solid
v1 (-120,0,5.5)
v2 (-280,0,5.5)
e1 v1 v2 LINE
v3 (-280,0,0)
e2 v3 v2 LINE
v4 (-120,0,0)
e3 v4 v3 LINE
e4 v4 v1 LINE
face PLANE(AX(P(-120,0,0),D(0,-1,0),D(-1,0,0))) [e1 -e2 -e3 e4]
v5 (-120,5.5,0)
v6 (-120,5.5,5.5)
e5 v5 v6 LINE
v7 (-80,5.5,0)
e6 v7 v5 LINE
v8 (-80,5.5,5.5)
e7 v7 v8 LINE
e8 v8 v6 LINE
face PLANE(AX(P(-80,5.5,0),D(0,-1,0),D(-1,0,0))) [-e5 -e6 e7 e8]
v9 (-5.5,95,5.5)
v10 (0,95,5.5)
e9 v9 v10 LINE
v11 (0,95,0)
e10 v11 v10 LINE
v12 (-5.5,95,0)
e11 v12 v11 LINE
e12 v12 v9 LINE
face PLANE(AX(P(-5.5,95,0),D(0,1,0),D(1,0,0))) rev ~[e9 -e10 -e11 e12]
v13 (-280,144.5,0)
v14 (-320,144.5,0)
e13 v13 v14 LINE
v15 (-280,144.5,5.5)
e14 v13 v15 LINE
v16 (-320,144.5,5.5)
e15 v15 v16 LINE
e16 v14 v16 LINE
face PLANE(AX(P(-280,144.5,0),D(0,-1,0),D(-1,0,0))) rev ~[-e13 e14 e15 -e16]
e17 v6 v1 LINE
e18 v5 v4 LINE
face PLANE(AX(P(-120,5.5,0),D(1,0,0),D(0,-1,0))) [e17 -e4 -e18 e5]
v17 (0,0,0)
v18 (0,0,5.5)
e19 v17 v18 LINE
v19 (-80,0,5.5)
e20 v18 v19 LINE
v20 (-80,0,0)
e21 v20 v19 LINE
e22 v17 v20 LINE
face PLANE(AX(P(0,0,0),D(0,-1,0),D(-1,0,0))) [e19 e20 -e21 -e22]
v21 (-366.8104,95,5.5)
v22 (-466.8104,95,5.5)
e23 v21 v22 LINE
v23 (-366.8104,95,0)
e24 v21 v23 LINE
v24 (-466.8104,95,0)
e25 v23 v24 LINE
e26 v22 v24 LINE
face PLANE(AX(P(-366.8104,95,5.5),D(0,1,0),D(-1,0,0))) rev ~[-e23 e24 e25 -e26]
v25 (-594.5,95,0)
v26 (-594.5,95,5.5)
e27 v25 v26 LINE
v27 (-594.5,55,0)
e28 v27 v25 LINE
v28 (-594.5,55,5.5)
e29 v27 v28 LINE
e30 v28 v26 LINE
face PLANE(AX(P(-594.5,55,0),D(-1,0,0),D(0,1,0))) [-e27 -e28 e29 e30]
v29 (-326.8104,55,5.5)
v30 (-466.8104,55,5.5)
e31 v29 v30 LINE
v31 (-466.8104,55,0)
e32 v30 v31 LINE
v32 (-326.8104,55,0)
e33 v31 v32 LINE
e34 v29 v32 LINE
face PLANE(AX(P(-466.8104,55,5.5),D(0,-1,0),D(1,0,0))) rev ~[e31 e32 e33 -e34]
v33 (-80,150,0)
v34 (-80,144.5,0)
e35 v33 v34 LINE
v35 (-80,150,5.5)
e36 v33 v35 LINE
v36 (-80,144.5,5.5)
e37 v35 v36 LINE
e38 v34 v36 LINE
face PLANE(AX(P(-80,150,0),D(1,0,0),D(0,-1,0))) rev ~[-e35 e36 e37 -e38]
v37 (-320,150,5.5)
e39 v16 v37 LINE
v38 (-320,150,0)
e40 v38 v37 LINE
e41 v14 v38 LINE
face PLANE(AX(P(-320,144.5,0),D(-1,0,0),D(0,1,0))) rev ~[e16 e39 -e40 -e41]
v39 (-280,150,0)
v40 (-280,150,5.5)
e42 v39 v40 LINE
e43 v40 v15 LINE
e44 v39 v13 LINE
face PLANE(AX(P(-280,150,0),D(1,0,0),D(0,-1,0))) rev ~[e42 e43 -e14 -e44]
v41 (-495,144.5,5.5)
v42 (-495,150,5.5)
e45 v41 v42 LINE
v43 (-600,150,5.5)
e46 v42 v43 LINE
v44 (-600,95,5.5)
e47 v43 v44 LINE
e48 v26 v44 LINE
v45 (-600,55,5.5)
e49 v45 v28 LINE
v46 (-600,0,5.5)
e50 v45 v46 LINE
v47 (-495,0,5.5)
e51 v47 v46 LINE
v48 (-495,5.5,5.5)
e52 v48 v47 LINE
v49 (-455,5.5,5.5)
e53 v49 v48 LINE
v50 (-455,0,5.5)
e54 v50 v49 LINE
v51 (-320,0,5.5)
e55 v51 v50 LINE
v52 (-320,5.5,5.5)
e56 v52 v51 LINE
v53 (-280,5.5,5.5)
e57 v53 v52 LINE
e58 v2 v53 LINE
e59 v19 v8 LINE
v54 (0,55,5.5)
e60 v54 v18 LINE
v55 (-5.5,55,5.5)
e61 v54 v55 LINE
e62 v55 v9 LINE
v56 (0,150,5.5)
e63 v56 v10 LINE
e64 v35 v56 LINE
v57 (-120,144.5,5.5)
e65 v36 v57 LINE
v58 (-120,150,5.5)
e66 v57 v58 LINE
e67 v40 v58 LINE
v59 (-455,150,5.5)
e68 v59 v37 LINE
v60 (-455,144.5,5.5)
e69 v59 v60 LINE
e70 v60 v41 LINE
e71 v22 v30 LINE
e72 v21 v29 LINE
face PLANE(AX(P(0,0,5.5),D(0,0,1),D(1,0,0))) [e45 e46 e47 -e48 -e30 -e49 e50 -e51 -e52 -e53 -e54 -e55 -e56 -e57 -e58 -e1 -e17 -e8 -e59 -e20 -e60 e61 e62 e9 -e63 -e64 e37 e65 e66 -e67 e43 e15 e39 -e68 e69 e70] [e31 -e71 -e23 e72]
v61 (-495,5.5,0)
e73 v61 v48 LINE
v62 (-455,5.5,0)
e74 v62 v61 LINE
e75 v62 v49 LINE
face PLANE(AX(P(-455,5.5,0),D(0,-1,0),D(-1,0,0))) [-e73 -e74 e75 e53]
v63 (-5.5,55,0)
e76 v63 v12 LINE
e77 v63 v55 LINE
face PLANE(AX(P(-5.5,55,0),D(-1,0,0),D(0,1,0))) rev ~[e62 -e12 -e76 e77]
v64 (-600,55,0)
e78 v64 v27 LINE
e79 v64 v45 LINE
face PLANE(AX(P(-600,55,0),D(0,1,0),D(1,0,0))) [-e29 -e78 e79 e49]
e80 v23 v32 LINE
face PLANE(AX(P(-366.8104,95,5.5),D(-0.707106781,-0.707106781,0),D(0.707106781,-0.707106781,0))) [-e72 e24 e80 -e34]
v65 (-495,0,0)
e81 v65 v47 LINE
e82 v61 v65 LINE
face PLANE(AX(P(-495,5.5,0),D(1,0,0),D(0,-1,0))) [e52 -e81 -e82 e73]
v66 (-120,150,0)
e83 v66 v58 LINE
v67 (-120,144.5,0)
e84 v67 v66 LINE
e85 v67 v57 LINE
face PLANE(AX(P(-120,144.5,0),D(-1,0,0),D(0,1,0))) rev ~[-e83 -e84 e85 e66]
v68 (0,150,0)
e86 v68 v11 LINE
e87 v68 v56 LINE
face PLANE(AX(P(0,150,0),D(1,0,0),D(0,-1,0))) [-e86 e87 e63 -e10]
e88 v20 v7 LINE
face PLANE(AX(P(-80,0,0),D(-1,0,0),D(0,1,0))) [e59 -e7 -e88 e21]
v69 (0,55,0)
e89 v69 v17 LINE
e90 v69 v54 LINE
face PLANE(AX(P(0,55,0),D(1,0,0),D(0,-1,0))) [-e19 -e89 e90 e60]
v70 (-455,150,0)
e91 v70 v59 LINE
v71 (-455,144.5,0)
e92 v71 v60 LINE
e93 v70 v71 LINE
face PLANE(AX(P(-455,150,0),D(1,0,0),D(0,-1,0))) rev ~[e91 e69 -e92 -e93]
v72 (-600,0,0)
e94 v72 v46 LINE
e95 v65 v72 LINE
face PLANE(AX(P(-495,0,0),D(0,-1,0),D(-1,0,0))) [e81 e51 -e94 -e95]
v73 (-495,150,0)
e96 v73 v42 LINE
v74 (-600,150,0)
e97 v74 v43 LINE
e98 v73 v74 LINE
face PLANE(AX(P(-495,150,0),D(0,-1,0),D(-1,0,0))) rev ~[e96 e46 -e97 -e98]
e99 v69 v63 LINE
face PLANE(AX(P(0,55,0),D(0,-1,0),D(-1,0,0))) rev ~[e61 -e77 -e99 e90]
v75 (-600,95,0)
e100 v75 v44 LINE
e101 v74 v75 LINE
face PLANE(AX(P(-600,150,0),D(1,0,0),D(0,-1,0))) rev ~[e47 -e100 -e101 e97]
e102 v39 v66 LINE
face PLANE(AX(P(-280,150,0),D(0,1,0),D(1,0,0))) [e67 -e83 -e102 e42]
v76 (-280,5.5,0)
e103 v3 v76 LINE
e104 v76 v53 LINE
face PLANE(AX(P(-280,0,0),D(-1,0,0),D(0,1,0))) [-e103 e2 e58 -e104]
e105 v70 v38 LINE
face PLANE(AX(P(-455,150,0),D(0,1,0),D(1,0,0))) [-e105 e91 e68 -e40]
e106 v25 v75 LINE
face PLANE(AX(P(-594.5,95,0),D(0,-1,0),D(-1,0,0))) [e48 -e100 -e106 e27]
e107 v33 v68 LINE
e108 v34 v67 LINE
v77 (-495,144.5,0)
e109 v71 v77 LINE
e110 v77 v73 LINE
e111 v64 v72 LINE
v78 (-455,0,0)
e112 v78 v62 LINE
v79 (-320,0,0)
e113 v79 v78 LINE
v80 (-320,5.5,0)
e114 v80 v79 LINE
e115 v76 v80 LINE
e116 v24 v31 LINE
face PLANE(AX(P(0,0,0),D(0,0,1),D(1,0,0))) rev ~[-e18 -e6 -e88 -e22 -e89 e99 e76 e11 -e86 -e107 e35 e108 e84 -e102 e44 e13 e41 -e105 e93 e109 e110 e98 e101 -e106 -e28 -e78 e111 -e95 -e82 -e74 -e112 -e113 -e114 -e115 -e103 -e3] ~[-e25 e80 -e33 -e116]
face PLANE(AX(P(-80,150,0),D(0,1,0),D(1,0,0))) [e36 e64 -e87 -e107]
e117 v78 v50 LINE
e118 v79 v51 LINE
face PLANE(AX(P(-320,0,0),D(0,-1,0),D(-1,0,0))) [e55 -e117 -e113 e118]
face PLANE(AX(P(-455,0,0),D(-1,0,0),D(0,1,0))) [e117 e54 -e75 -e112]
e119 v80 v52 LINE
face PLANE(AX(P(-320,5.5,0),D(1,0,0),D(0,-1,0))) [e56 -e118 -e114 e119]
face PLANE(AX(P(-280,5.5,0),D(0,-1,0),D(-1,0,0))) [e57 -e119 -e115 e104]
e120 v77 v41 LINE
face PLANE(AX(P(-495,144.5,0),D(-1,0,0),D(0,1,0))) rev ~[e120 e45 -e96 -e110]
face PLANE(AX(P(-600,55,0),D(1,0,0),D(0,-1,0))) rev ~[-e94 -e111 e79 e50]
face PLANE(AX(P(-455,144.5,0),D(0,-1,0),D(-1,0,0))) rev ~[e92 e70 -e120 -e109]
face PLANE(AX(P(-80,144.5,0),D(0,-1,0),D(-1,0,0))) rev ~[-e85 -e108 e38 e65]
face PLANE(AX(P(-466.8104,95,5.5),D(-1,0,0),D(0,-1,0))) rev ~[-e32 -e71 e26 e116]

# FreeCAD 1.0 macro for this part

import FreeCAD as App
import Part
import Sketcher
from FreeCAD import Vector
Q = App.Units.Quantity

doc = App.newDocument("Part")
body = doc.addObject("PartDesign::Body", "Body")

sketch1 = body.newObject("Sketcher::SketchObject", "Sketch")
sketch1.AttachmentSupport = (doc.getObject("XY_Plane"), [""])
sketch1.MapMode = "FlatFace"
sketch1.addGeometry(Part.LineSegment(Vector(-280, 6, 0), Vector(-280, 0, 0)), False)
sketch1.addGeometry(Part.LineSegment(Vector(-280, 0, 0), Vector(-120, 0, 0)), False)
sketch1.addGeometry(Part.LineSegment(Vector(-120, 0, 0), Vector(-120, 6, 0)), False)
sketch1.addGeometry(Part.LineSegment(Vector(-120, 6, 0), Vector(-80, 6, 0)), False)
sketch1.addGeometry(Part.LineSegment(Vector(-80, 6, 0), Vector(-80, 0, 0)), False)
sketch1.addGeometry(Part.LineSegment(Vector(-80, 0, 0), Vector(0, 0, 0)), False)
sketch1.addGeometry(Part.LineSegment(Vector(0, 0, 0), Vector(0, 55, 0)), False)
sketch1.addGeometry(Part.LineSegment(Vector(0, 55, 0), Vector(-6, 55, 0)), False)
sketch1.addGeometry(Part.LineSegment(Vector(-6, 55, 0), Vector(-6, 95, 0)), False)
sketch1.addGeometry(Part.LineSegment(Vector(-6, 95, 0), Vector(0, 95, 0)), False)
sketch1.addGeometry(Part.LineSegment(Vector(0, 95, 0), Vector(0, 150, 0)), False)
sketch1.addGeometry(Part.LineSegment(Vector(0, 150, 0), Vector(-80, 150, 0)), False)
sketch1.addGeometry(Part.LineSegment(Vector(-80, 150, 0), Vector(-80, 144, 0)), False)
sketch1.addGeometry(Part.LineSegment(Vector(-80, 144, 0), Vector(-120, 144, 0)), False)
sketch1.addGeometry(Part.LineSegment(Vector(-120, 144, 0), Vector(-120, 150, 0)), False)
sketch1.addGeometry(Part.LineSegment(Vector(-120, 150, 0), Vector(-280, 150, 0)), False)
sketch1.addGeometry(Part.LineSegment(Vector(-280, 150, 0), Vector(-280, 144, 0)), False)
sketch1.addGeometry(Part.LineSegment(Vector(-280, 144, 0), Vector(-320, 144, 0)), False)
sketch1.addGeometry(Part.LineSegment(Vector(-320, 144, 0), Vector(-320, 150, 0)), False)
sketch1.addGeometry(Part.LineSegment(Vector(-320, 150, 0), Vector(-455, 150, 0)), False)
sketch1.addGeometry(Part.LineSegment(Vector(-455, 150, 0), Vector(-455, 144, 0)), False)
sketch1.addGeometry(Part.LineSegment(Vector(-455, 144, 0), Vector(-495, 144, 0)), False)
sketch1.addGeometry(Part.LineSegment(Vector(-495, 144, 0), Vector(-495, 150, 0)), False)
sketch1.addGeometry(Part.LineSegment(Vector(-495, 150, 0), Vector(-600, 150, 0)), False)
sketch1.addGeometry(Part.LineSegment(Vector(-600, 150, 0), Vector(-600, 95, 0)), False)
sketch1.addGeometry(Part.LineSegment(Vector(-600, 95, 0), Vector(-594, 95, 0)), False)
sketch1.addGeometry(Part.LineSegment(Vector(-594, 95, 0), Vector(-594, 55, 0)), False)
sketch1.addGeometry(Part.LineSegment(Vector(-594, 55, 0), Vector(-600, 55, 0)), False)
sketch1.addGeometry(Part.LineSegment(Vector(-600, 55, 0), Vector(-600, 0, 0)), False)
sketch1.addGeometry(Part.LineSegment(Vector(-600, 0, 0), Vector(-495, 0, 0)), False)
sketch1.addGeometry(Part.LineSegment(Vector(-495, 0, 0), Vector(-495, 6, 0)), False)
sketch1.addGeometry(Part.LineSegment(Vector(-495, 6, 0), Vector(-455, 6, 0)), False)
sketch1.addGeometry(Part.LineSegment(Vector(-455, 6, 0), Vector(-455, 0, 0)), False)
sketch1.addGeometry(Part.LineSegment(Vector(-455, 0, 0), Vector(-320, 0, 0)), False)
sketch1.addGeometry(Part.LineSegment(Vector(-320, 0, 0), Vector(-320, 6, 0)), False)
sketch1.addGeometry(Part.LineSegment(Vector(-320, 6, 0), Vector(-280, 6, 0)), False)
sketch1.addConstraint(Sketcher.Constraint("Coincident", 0, 2, 1, 1))
sketch1.addConstraint(Sketcher.Constraint("Coincident", 1, 2, 2, 1))
sketch1.addConstraint(Sketcher.Constraint("Coincident", 2, 2, 3, 1))
sketch1.addConstraint(Sketcher.Constraint("Coincident", 3, 2, 4, 1))
sketch1.addConstraint(Sketcher.Constraint("Coincident", 4, 2, 5, 1))
sketch1.addConstraint(Sketcher.Constraint("Coincident", 5, 2, 6, 1))
sketch1.addConstraint(Sketcher.Constraint("Coincident", 6, 2, 7, 1))
sketch1.addConstraint(Sketcher.Constraint("Coincident", 7, 2, 8, 1))
sketch1.addConstraint(Sketcher.Constraint("Coincident", 8, 2, 9, 1))
sketch1.addConstraint(Sketcher.Constraint("Coincident", 9, 2, 10, 1))
sketch1.addConstraint(Sketcher.Constraint("Coincident", 10, 2, 11, 1))
sketch1.addConstraint(Sketcher.Constraint("Coincident", 11, 2, 12, 1))
sketch1.addConstraint(Sketcher.Constraint("Coincident", 12, 2, 13, 1))
sketch1.addConstraint(Sketcher.Constraint("Coincident", 13, 2, 14, 1))
sketch1.addConstraint(Sketcher.Constraint("Coincident", 14, 2, 15, 1))
sketch1.addConstraint(Sketcher.Constraint("Coincident", 15, 2, 16, 1))
sketch1.addConstraint(Sketcher.Constraint("Coincident", 16, 2, 17, 1))
sketch1.addConstraint(Sketcher.Constraint("Coincident", 17, 2, 18, 1))
sketch1.addConstraint(Sketcher.Constraint("Coincident", 18, 2, 19, 1))
sketch1.addConstraint(Sketcher.Constraint("Coincident", 19, 2, 20, 1))
sketch1.addConstraint(Sketcher.Constraint("Coincident", 20, 2, 21, 1))
sketch1.addConstraint(Sketcher.Constraint("Coincident", 21, 2, 22, 1))
sketch1.addConstraint(Sketcher.Constraint("Coincident", 22, 2, 23, 1))
sketch1.addConstraint(Sketcher.Constraint("Coincident", 23, 2, 24, 1))
sketch1.addConstraint(Sketcher.Constraint("Coincident", 24, 2, 25, 1))
sketch1.addConstraint(Sketcher.Constraint("Coincident", 25, 2, 26, 1))
sketch1.addConstraint(Sketcher.Constraint("Coincident", 26, 2, 27, 1))
sketch1.addConstraint(Sketcher.Constraint("Coincident", 27, 2, 28, 1))
sketch1.addConstraint(Sketcher.Constraint("Coincident", 28, 2, 29, 1))
sketch1.addConstraint(Sketcher.Constraint("Coincident", 29, 2, 30, 1))
sketch1.addConstraint(Sketcher.Constraint("Coincident", 30, 2, 31, 1))
sketch1.addConstraint(Sketcher.Constraint("Coincident", 31, 2, 32, 1))
sketch1.addConstraint(Sketcher.Constraint("Coincident", 32, 2, 33, 1))
sketch1.addConstraint(Sketcher.Constraint("Coincident", 33, 2, 34, 1))
sketch1.addConstraint(Sketcher.Constraint("Coincident", 34, 2, 35, 1))
sketch1.addConstraint(Sketcher.Constraint("Coincident", 35, 2, 0, 1))
sketch1.addConstraint(Sketcher.Constraint("Vertical", 0))
sketch1.addConstraint(Sketcher.Constraint("Horizontal", 1))
sketch1.addConstraint(Sketcher.Constraint("Vertical", 2))
sketch1.addConstraint(Sketcher.Constraint("Horizontal", 3))
sketch1.addConstraint(Sketcher.Constraint("Vertical", 4))
sketch1.addConstraint(Sketcher.Constraint("Horizontal", 5))
sketch1.addConstraint(Sketcher.Constraint("Vertical", 6))
sketch1.addConstraint(Sketcher.Constraint("Horizontal", 7))
sketch1.addConstraint(Sketcher.Constraint("Vertical", 8))
sketch1.addConstraint(Sketcher.Constraint("Horizontal", 9))
sketch1.addConstraint(Sketcher.Constraint("Vertical", 10))
sketch1.addConstraint(Sketcher.Constraint("Horizontal", 11))
sketch1.addConstraint(Sketcher.Constraint("Vertical", 12))
sketch1.addConstraint(Sketcher.Constraint("Horizontal", 13))
sketch1.addConstraint(Sketcher.Constraint("Vertical", 14))
sketch1.addConstraint(Sketcher.Constraint("Horizontal", 15))
sketch1.addConstraint(Sketcher.Constraint("Vertical", 16))
sketch1.addConstraint(Sketcher.Constraint("Horizontal", 17))
sketch1.addConstraint(Sketcher.Constraint("Vertical", 18))
sketch1.addConstraint(Sketcher.Constraint("Horizontal", 19))
sketch1.addConstraint(Sketcher.Constraint("Vertical", 20))
sketch1.addConstraint(Sketcher.Constraint("Horizontal", 21))
sketch1.addConstraint(Sketcher.Constraint("Vertical", 22))
sketch1.addConstraint(Sketcher.Constraint("Horizontal", 23))
sketch1.addConstraint(Sketcher.Constraint("Vertical", 24))
sketch1.addConstraint(Sketcher.Constraint("Horizontal", 25))
sketch1.addConstraint(Sketcher.Constraint("Vertical", 26))
sketch1.addConstraint(Sketcher.Constraint("Horizontal", 27))
sketch1.addConstraint(Sketcher.Constraint("Vertical", 28))
sketch1.addConstraint(Sketcher.Constraint("Horizontal", 29))
sketch1.addConstraint(Sketcher.Constraint("Vertical", 30))
sketch1.addConstraint(Sketcher.Constraint("Horizontal", 31))
sketch1.addConstraint(Sketcher.Constraint("Vertical", 32))
sketch1.addConstraint(Sketcher.Constraint("Horizontal", 33))
sketch1.addConstraint(Sketcher.Constraint("Vertical", 34))
sketch1.addConstraint(Sketcher.Constraint("Horizontal", 35))
sketch1.addConstraint(Sketcher.Constraint("Coincident", 5, 2, -1, 1))
sketch1.addConstraint(Sketcher.Constraint("PointOnObject", 0, 2, -1))
sketch1.addConstraint(Sketcher.Constraint("PointOnObject", 9, 2, -2))
sketch1.addConstraint(Sketcher.Constraint("PointOnObject", 28, 2, -1))
sketch1.addConstraint(Sketcher.Constraint("PointOnObject", 32, 2, -1))
sketch1.addConstraint(Sketcher.Constraint("Horizontal", 11, 2, 14, 2))
sketch1.addConstraint(Sketcher.Constraint("Horizontal", 13, 2, 16, 2))
sketch1.addConstraint(Sketcher.Constraint("Horizontal", 15, 2, 18, 2))
sketch1.addConstraint(Sketcher.Constraint("Horizontal", 17, 2, 20, 2))
sketch1.addConstraint(Sketcher.Constraint("Horizontal", 19, 2, 22, 2))
sketch1.addConstraint(Sketcher.Constraint("Horizontal", 9, 2, 24, 2))
sketch1.addConstraint(Sketcher.Constraint("Horizontal", 7, 2, 26, 2))
sketch1.addConstraint(Sketcher.Constraint("Horizontal", 3, 2, 30, 2))
sketch1.addConstraint(Sketcher.Constraint("Horizontal", 31, 2, 34, 2))
sketch1.addConstraint(Sketcher.Constraint("Vertical", 4, 2, 11, 2))
sketch1.addConstraint(Sketcher.Constraint("Vertical", 2, 2, 13, 2))
sketch1.addConstraint(Sketcher.Constraint("Vertical", 0, 2, 15, 2))
sketch1.addConstraint(Sketcher.Constraint("Vertical", 24, 2, 27, 2))
sketch1.addConstraint(Sketcher.Constraint("Vertical", 22, 2, 29, 2))
sketch1.addConstraint(Sketcher.Constraint("Vertical", 20, 2, 31, 2))
sketch1.addConstraint(Sketcher.Constraint("Vertical", 18, 2, 33, 2))
sketch1.addConstraint(Sketcher.Constraint("Equal", 13, 17))
sketch1.addConstraint(Sketcher.Constraint("Equal", 17, 21))
sketch1.addConstraint(Sketcher.Constraint("Equal", 9, 25))
sketch1.addConstraint(Sketcher.Constraint("Equal", 27, 0))
sketch1.addConstraint(Sketcher.Constraint("Equal", 35, 8))
sketch1.addConstraint(Sketcher.Constraint("Equal", 6, 10))
sketch1.addConstraint(Sketcher.Constraint("Equal", 4, 12))
sketch1.addConstraint(Sketcher.Constraint("DistanceX", 3, 1, 3, 2, Q("40 mm")))
sketch1.addConstraint(Sketcher.Constraint("DistanceX", 7, 2, 7, 1, Q("5.5 mm")))
sketch1.addConstraint(Sketcher.Constraint("DistanceY", -1, 1, 10, 2, Q("150 mm")))
sketch1.addConstraint(Sketcher.Constraint("DistanceX", 23, 2, -1, 1, Q("600 mm")))
sketch1.addConstraint(Sketcher.Constraint("DistanceX", 1, 1, 1, 2, Q("160 mm")))
sketch1.addConstraint(Sketcher.Constraint("DistanceX", 5, 1, 5, 2, Q("80 mm")))
sketch1.addConstraint(Sketcher.Constraint("DistanceX", 19, 2, 19, 1, Q("135 mm")))
pad1 = body.newObject("PartDesign::Pad", "Pad")
pad1.Profile = sketch1
pad1.Length = 5.5

sketch2 = body.newObject("Sketcher::SketchObject", "Sketch001")
sketch2.AttachmentSupport = (doc.getObject("XY_Plane"), [""])
sketch2.MapMode = "FlatFace"
sketch2.AttachmentOffset = App.Placement(Vector(0, 0, 5.5), App.Rotation())
sketch2.addGeometry(Part.LineSegment(Vector(-467, 95, 0), Vector(-467, 55, 0)), False)
sketch2.addGeometry(Part.LineSegment(Vector(-467, 55, 0), Vector(-327, 55, 0)), False)
sketch2.addGeometry(Part.LineSegment(Vector(-327, 55, 0), Vector(-367, 95, 0)), False)
sketch2.addGeometry(Part.LineSegment(Vector(-367, 95, 0), Vector(-467, 95, 0)), False)
sketch2.addConstraint(Sketcher.Constraint("Coincident", 0, 2, 1, 1))
sketch2.addConstraint(Sketcher.Constraint("Coincident", 1, 2, 2, 1))
sketch2.addConstraint(Sketcher.Constraint("Coincident", 2, 2, 3, 1))
sketch2.addConstraint(Sketcher.Constraint("Coincident", 3, 2, 0, 1))
sketch2.addConstraint(Sketcher.Constraint("Vertical", 0))
sketch2.addConstraint(Sketcher.Constraint("Horizontal", 1))
sketch2.addConstraint(Sketcher.Constraint("Horizontal", 3))
sketch2.addConstraint(Sketcher.Constraint("DistanceX", 3, 2, 3, 1, Q("100 mm")))
sketch2.addConstraint(Sketcher.Constraint("DistanceY", 0, 2, 0, 1, Q("40 mm")))
sketch2.addConstraint(Sketcher.Constraint("DistanceX", 2, 2, 1, 2, Q("40 mm")))
sketch2.addConstraint(Sketcher.Constraint("DistanceY", -1, 1, 0, 2, Q("55 mm")))
sketch2.addConstraint(Sketcher.Constraint("DistanceX", 0, 2, -1, 1, Q("466.8104 mm")))
pocket1 = body.newObject("PartDesign::Pocket", "Pocket")
pocket1.Profile = sketch2
pocket1.Length = 10

doc.recompute()
